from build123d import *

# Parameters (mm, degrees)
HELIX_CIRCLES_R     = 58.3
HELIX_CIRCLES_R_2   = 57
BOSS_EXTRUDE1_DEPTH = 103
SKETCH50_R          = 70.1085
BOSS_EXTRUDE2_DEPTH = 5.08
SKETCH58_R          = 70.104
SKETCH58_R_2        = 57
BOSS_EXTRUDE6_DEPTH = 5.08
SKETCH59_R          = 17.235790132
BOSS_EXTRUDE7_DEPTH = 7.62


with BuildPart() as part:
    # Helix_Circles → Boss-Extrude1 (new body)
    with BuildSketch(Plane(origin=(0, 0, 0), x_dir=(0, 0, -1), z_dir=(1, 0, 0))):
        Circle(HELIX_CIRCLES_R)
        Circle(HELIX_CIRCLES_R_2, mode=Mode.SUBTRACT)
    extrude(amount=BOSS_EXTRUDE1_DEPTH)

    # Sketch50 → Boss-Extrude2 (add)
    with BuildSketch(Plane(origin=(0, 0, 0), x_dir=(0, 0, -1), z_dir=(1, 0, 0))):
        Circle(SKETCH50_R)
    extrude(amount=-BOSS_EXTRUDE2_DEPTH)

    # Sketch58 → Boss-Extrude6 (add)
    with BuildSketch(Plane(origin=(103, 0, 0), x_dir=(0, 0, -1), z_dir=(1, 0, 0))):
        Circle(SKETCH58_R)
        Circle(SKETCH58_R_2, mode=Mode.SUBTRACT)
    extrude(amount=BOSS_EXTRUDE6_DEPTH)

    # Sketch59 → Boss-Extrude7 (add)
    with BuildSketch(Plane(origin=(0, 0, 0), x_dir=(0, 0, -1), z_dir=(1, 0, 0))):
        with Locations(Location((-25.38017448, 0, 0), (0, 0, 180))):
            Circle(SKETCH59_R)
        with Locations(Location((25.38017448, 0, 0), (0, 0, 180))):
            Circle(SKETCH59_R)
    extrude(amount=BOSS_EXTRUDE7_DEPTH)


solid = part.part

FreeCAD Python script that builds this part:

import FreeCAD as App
import Part
import Sketcher
from FreeCAD import Vector
Q = App.Units.Quantity

doc = App.newDocument("Part")
body = doc.addObject("PartDesign::Body", "Body")

# Sketch on YZ plane
sketch1 = body.newObject("Sketcher::SketchObject", "Sketch")
sketch1.AttachmentSupport = (doc.getObject("YZ_Plane"), [""])
sketch1.MapMode = "FlatFace"
sketch1.addGeometry(Part.Circle(Vector(0, 0, 0), Vector(0, 0, 1), 58), False)
sketch1.addGeometry(Part.Circle(Vector(0, 0, 0), Vector(0, 0, 1), 57), False)
sketch1.addConstraint(Sketcher.Constraint("Coincident", 0, 3, -1, 1))
sketch1.addConstraint(Sketcher.Constraint("Coincident", 1, 3, -1, 1))
sketch1.addConstraint(Sketcher.Constraint("Diameter", 1, Q("114 mm")))
sketch1.addConstraint(Sketcher.Constraint("Diameter", 0, Q("116.6 mm")))
pad1 = body.newObject("PartDesign::Pad", "Pad")
pad1.Profile = sketch1
pad1.Length = 103

# Sketch on YZ plane
sketch2 = body.newObject("Sketcher::SketchObject", "Sketch001")
sketch2.AttachmentSupport = (doc.getObject("YZ_Plane"), [""])
sketch2.MapMode = "FlatFace"
sketch2.addGeometry(Part.Circle(Vector(0, 0, 0), Vector(0, 0, 1), 70), False)
sketch2.addConstraint(Sketcher.Constraint("Coincident", 0, 3, -1, 1))
sketch2.addConstraint(Sketcher.Constraint("Diameter", 0, Q("140.217 mm")))
pad2 = body.newObject("PartDesign::Pad", "Pad001")
pad2.Profile = sketch2
pad2.Length = 5.08
pad2.Reversed = True

# Sketch on YZ plane
sketch3 = body.newObject("Sketcher::SketchObject", "Sketch002")
sketch3.AttachmentSupport = (doc.getObject("YZ_Plane"), [""])
sketch3.MapMode = "FlatFace"
sketch3.AttachmentOffset = App.Placement(Vector(0, 0, 103), App.Rotation())
sketch3.addGeometry(Part.Circle(Vector(0, 0, 0), Vector(0, 0, 1), 70), False)
sketch3.addGeometry(Part.Circle(Vector(0, 0, 0), Vector(0, 0, 1), 57), False)
sketch3.addConstraint(Sketcher.Constraint("Coincident", 0, 3, -1, 1))
sketch3.addConstraint(Sketcher.Constraint("Coincident", 1, 3, -1, 1))
sketch3.addConstraint(Sketcher.Constraint("Diameter", 1, Q("114 mm")))
sketch3.addConstraint(Sketcher.Constraint("Diameter", 0, Q("140.208 mm")))
pad3 = body.newObject("PartDesign::Pad", "Pad002")
pad3.Profile = sketch3
pad3.Length = 5.08

# Sketch on YZ plane
sketch4 = body.newObject("Sketcher::SketchObject", "Sketch003")
sketch4.AttachmentSupport = (doc.getObject("YZ_Plane"), [""])
sketch4.MapMode = "FlatFace"
sketch4.addGeometry(Part.Circle(Vector(0, 25, 0), Vector(0, 0, 1), 17), False)
sketch4.addGeometry(Part.Circle(Vector(0, -25, 0), Vector(0, 0, 1), 17), False)
sketch4.addConstraint(Sketcher.Constraint("Equal", 0, 1))
sketch4.addConstraint(Sketcher.Constraint("Symmetric", 0, 3, 1, 3, -1, 1))
sketch4.addConstraint(Sketcher.Constraint("PointOnObject", 0, 3, -2))
sketch4.addConstraint(Sketcher.Constraint("Diameter", 0, Q("34.47158 mm")))
sketch4.addConstraint(Sketcher.Constraint("DistanceY", 1, 3, 0, 3, Q("50.760349 mm")))
pad4 = body.newObject("PartDesign::Pad", "Pad003")
pad4.Profile = sketch4
pad4.Length = 7.62

doc.recompute()
